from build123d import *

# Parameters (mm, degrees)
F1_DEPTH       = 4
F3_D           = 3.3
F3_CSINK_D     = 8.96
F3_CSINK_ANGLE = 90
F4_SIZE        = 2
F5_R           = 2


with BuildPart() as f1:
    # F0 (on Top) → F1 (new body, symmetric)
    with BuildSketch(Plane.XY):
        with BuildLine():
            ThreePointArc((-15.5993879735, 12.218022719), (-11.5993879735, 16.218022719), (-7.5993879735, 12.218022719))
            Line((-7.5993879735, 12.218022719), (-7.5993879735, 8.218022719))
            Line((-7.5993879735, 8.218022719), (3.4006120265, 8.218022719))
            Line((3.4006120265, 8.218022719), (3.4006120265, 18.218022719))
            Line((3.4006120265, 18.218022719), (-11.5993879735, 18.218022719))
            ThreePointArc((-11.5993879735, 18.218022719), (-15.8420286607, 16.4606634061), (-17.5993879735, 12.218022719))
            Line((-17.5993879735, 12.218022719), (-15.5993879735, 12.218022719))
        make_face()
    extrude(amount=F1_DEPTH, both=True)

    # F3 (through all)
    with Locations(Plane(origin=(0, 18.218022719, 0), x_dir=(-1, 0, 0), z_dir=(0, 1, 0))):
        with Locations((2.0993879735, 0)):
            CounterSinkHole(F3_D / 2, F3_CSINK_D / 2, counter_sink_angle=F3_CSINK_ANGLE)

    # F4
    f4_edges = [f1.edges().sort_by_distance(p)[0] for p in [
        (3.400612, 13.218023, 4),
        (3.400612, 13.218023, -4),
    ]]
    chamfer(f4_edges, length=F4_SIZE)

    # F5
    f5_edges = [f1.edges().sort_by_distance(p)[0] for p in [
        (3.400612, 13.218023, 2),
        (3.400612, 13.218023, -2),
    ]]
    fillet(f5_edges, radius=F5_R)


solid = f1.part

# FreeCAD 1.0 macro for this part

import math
import FreeCAD as App
import Part
import Sketcher
Q = App.Units.Quantity


def edges_at(feature, points):
    """Names of the edges that pass closest to the given points."""
    edges = feature.Shape.Edges
    near = lambda p: min(range(len(edges)), key=lambda i: edges[i].distToShape(Part.Vertex(*p))[0])
    return sorted({f"Edge{near(p) + 1}" for p in points})

doc = App.newDocument("Part")
body = doc.addObject("PartDesign::Body", "Body")

# Sketch on XY plane
sketch1 = body.newObject("Sketcher::SketchObject", "Sketch")
sketch1.AttachmentSupport = (doc.getObject("XY_Plane"), [""])
sketch1.MapMode = "FlatFace"
sketch1.addGeometry([
    Part.ArcOfCircle(Part.Circle(App.Vector(-11.6, 12.2, 0), App.Vector(0, 0, 1), 4), math.radians(0), math.radians(180)),  # 0
    Part.LineSegment(App.Vector(-7.6, 12.2, 0), App.Vector(-7.6, 8.2, 0)),  # 1
    Part.LineSegment(App.Vector(-7.6, 8.2, 0), App.Vector(3.4, 8.2, 0)),  # 2
    Part.LineSegment(App.Vector(3.4, 8.2, 0), App.Vector(3.4, 18.2, 0)),  # 3
    Part.LineSegment(App.Vector(3.4, 18.2, 0), App.Vector(-11.6, 18.2, 0)),  # 4
    Part.ArcOfCircle(Part.Circle(App.Vector(-11.6, 12.2, 0), App.Vector(0, 0, 1), 6), math.radians(90), math.radians(180)),  # 5
    Part.LineSegment(App.Vector(-17.6, 12.2, 0), App.Vector(-15.6, 12.2, 0)),  # 6
], False)
sketch1.addConstraint([
    Sketcher.Constraint("Tangent", 0, 1, 1, 1),
    Sketcher.Constraint("Coincident", 1, 2, 2, 1),
    Sketcher.Constraint("Coincident", 2, 2, 3, 1),
    Sketcher.Constraint("Coincident", 3, 2, 4, 1),
    Sketcher.Constraint("Tangent", 4, 2, 5, 1),
    Sketcher.Constraint("Coincident", 5, 2, 6, 1),
    Sketcher.Constraint("Coincident", 6, 2, 0, 2),
    Sketcher.Constraint("Vertical", 1),
    Sketcher.Constraint("Horizontal", 2),
    Sketcher.Constraint("Vertical", 3),
    Sketcher.Constraint("Horizontal", 4),
    Sketcher.Constraint("Horizontal", 6),
    Sketcher.Constraint("Coincident", 5, 3, 0, 3),
    Sketcher.Constraint("Horizontal", 0, 1, 5, 2),
    Sketcher.Constraint("Radius", 0, Q("4 mm")),
    Sketcher.Constraint("Radius", 5, Q("6 mm")),
    Sketcher.Constraint("DistanceX", 2, 1, 2, 2, Q("11 mm")),
    Sketcher.Constraint("DistanceY", 1, 2, 1, 1, Q("4 mm")),
    Sketcher.Constraint("DistanceX", 0, 3, -1, 1, Q("11.599388 mm")),
    Sketcher.Constraint("DistanceY", -1, 1, 0, 3, Q("12.218023 mm")),
])
pad1 = body.newObject("PartDesign::Pad", "Pad")
pad1.Profile = sketch1
pad1.Length = 8
pad1.Midplane = True

# Sketch on XZ plane
sketch2 = body.newObject("Sketcher::SketchObject", "Sketch001")
sketch2.AttachmentSupport = (doc.getObject("XZ_Plane"), [""])
sketch2.MapMode = "FlatFace"
sketch2.AttachmentOffset = App.Placement(App.Vector(0, 0, -18.218023), App.Rotation())
sketch2.addGeometry(Part.Circle(App.Vector(-2.1, 0, 0), App.Vector(0, 0, 1), 1.6), False)
sketch2.addConstraint([
    Sketcher.Constraint("PointOnObject", 0, 3, -1),
    Sketcher.Constraint("Diameter", 0, Q("3.3 mm")),
    Sketcher.Constraint("DistanceX", 0, 3, -1, 1, Q("2.099388 mm")),
])
doc.recompute()
hole = body.newObject("PartDesign::Hole", "Hole")
hole.Profile = sketch2
hole.ThreadType = "None"
hole.Diameter = 3.3
hole.DepthType = "ThroughAll"
hole.HoleCutType = "Countersink"
hole.HoleCutDiameter = 8.96
hole.HoleCutCountersinkAngle = 90
hole.Reversed = True
doc.recompute()

chamfer = body.newObject("PartDesign::Chamfer", "Chamfer")
chamfer.Base = (hole, edges_at(hole, [(3.401, 13.218, 4), (3.401, 13.218, -4)]))
chamfer.Size = 2
doc.recompute()

fillet = body.newObject("PartDesign::Fillet", "Fillet")
fillet.Base = (chamfer, edges_at(chamfer, [(3.401, 13.218, 2), (3.401, 13.218, -2)]))
fillet.Radius = 2

doc.recompute()
